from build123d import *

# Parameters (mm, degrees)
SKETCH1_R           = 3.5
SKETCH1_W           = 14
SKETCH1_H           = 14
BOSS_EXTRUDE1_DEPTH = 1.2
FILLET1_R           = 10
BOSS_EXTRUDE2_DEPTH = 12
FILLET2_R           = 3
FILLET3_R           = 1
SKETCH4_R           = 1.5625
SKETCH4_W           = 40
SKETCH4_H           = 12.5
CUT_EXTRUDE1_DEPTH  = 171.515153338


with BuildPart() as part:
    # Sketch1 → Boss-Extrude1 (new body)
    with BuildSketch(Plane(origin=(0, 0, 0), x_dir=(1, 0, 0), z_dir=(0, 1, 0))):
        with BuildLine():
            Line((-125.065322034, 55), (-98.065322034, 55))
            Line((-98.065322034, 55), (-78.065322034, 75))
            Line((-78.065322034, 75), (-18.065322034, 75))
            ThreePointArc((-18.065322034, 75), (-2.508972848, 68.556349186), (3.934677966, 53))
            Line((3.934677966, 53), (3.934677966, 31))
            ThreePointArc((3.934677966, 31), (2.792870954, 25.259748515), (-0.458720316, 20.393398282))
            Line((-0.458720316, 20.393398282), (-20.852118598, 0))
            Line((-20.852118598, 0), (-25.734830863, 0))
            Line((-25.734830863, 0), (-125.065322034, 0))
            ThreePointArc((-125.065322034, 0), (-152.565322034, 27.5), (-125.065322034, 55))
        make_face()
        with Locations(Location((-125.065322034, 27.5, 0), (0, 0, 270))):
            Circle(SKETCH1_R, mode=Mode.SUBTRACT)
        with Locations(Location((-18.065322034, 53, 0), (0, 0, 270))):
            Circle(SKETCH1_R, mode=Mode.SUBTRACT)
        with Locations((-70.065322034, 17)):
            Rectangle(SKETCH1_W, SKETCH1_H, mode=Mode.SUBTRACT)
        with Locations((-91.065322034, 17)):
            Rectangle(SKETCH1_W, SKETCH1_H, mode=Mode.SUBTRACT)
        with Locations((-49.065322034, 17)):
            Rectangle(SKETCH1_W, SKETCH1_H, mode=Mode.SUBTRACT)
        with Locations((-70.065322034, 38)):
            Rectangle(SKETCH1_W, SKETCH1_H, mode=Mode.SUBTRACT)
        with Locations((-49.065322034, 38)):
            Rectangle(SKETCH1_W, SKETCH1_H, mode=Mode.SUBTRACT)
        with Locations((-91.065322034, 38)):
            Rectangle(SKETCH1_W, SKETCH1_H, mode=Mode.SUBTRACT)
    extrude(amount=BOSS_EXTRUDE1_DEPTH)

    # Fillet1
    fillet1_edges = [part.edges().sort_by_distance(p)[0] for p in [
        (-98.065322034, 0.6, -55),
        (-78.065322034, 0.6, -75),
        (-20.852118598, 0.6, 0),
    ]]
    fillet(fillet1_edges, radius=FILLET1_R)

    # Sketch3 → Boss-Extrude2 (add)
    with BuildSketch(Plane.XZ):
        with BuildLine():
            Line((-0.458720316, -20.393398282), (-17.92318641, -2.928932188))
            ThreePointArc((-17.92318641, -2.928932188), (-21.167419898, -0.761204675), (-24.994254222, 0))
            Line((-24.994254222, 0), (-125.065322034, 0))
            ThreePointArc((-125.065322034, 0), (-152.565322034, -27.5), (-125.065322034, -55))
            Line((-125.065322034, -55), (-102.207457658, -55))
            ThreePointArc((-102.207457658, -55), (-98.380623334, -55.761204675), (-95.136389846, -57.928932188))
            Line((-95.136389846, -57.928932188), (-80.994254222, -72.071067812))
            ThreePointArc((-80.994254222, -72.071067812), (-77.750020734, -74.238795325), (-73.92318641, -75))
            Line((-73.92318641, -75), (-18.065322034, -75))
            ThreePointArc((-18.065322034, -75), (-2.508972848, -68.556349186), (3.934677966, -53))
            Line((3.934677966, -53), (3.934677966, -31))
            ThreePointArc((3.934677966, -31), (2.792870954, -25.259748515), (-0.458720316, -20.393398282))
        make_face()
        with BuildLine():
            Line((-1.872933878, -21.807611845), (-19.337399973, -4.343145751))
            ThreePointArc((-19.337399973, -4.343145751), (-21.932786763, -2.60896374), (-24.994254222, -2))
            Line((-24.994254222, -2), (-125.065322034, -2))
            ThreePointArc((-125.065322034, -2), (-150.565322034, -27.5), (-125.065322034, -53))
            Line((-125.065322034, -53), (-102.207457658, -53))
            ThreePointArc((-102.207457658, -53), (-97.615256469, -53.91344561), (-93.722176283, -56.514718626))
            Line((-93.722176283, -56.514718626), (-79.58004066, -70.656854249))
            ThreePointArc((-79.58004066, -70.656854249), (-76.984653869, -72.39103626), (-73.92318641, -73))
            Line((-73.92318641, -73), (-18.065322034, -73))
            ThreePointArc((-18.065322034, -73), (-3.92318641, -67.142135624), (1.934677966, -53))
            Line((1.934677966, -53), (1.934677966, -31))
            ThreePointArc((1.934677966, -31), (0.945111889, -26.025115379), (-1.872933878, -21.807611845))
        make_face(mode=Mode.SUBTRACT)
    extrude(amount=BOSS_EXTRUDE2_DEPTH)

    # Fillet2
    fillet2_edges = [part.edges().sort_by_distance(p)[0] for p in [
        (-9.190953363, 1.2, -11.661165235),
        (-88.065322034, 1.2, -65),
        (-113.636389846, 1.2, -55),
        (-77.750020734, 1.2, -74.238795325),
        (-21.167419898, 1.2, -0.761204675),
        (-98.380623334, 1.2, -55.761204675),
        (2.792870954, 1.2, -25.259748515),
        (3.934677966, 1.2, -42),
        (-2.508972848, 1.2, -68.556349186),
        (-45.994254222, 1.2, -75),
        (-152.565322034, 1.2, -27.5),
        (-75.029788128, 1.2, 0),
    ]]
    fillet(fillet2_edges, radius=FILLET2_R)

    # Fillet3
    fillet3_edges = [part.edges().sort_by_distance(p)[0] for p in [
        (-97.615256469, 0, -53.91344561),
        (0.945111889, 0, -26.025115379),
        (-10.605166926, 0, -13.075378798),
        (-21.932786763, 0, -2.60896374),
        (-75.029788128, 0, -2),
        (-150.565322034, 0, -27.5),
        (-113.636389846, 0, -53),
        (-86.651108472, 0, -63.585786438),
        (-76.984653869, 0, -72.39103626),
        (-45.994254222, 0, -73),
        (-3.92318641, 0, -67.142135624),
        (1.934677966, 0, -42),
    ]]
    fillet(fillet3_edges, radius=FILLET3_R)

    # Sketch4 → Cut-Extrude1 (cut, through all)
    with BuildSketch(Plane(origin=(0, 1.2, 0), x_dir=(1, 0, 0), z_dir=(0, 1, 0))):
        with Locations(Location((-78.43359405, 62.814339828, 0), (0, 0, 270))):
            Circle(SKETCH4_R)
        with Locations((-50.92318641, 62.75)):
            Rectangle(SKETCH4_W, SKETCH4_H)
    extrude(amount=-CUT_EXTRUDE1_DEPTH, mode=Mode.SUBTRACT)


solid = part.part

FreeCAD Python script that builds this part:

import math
import FreeCAD as App
import Part
import Sketcher
Q = App.Units.Quantity


def edges_at(feature, points):
    """Names of the edges that pass closest to the given points."""
    edges = feature.Shape.Edges
    near = lambda p: min(range(len(edges)), key=lambda i: edges[i].distToShape(Part.Vertex(*p))[0])
    return sorted({f"Edge{near(p) + 1}" for p in points})

doc = App.newDocument("Part")
body = doc.addObject("PartDesign::Body", "Body")

# Sketch on XZ plane
sketch1 = doc.addObject("Sketcher::SketchObject", "Sketch")
body.addObject(sketch1)
sketch1.AttachmentSupport = (doc.XZ_Plane, [""])
sketch1.MapMode = "FlatFace"
sketch1.addGeometry([
    Part.LineSegment(App.Vector(-98.065322, -55, 0), App.Vector(-125.065322, -55, 0)),  # 0
    Part.ArcOfCircle(Part.Circle(App.Vector(-125.065322, -27.5, 0), App.Vector(0, 0, 1), 27.5), math.radians(90), math.radians(270)),  # 1
    Part.LineSegment(App.Vector(-125.065322, 0, 0), App.Vector(-20.852119, 0, 0)),  # 2
    Part.LineSegment(App.Vector(-20.852119, 0, 0), App.Vector(-0.45872, -20.393398, 0)),  # 3
    Part.ArcOfCircle(Part.Circle(App.Vector(-11.065322, -31, 0), App.Vector(0, 0, 1), 15), math.radians(0), math.radians(45)),  # 4
    Part.LineSegment(App.Vector(3.934678, -31, 0), App.Vector(3.934678, -53, 0)),  # 5
    Part.ArcOfCircle(Part.Circle(App.Vector(-18.065322, -53, 0), App.Vector(0, 0, 1), 22), math.radians(-90), math.radians(0)),  # 6
    Part.LineSegment(App.Vector(-18.065322, -75, 0), App.Vector(-78.065322, -75, 0)),  # 7
    Part.LineSegment(App.Vector(-78.065322, -75, 0), App.Vector(-98.065322, -55, 0)),  # 8
    Part.LineSegment(App.Vector(-56.065322, -10, 0), App.Vector(-56.065322, -24, 0)),  # 9
    Part.LineSegment(App.Vector(-56.065322, -24, 0), App.Vector(-42.065322, -24, 0)),  # 10
    Part.LineSegment(App.Vector(-42.065322, -24, 0), App.Vector(-42.065322, -10, 0)),  # 11
    Part.LineSegment(App.Vector(-42.065322, -10, 0), App.Vector(-56.065322, -10, 0)),  # 12
    Part.LineSegment(App.Vector(-77.065322, -10, 0), App.Vector(-77.065322, -24, 0)),  # 13
    Part.LineSegment(App.Vector(-77.065322, -24, 0), App.Vector(-63.065322, -24, 0)),  # 14
    Part.LineSegment(App.Vector(-63.065322, -24, 0), App.Vector(-63.065322, -10, 0)),  # 15
    Part.LineSegment(App.Vector(-63.065322, -10, 0), App.Vector(-77.065322, -10, 0)),  # 16
    Part.LineSegment(App.Vector(-98.065322, -10, 0), App.Vector(-98.065322, -24, 0)),  # 17
    Part.LineSegment(App.Vector(-98.065322, -24, 0), App.Vector(-84.065322, -24, 0)),  # 18
    Part.LineSegment(App.Vector(-84.065322, -24, 0), App.Vector(-84.065322, -10, 0)),  # 19
    Part.LineSegment(App.Vector(-84.065322, -10, 0), App.Vector(-98.065322, -10, 0)),  # 20
    Part.Circle(App.Vector(-125.065322, -27.5, 0), App.Vector(0, 0, 1), 3.5),  # 21
    Part.LineSegment(App.Vector(-56.065322, -31, 0), App.Vector(-56.065322, -45, 0)),  # 22
    Part.LineSegment(App.Vector(-56.065322, -45, 0), App.Vector(-42.065322, -45, 0)),  # 23
    Part.LineSegment(App.Vector(-42.065322, -45, 0), App.Vector(-42.065322, -31, 0)),  # 24
    Part.LineSegment(App.Vector(-42.065322, -31, 0), App.Vector(-56.065322, -31, 0)),  # 25
    Part.LineSegment(App.Vector(-77.065322, -31, 0), App.Vector(-77.065322, -45, 0)),  # 26
    Part.LineSegment(App.Vector(-77.065322, -45, 0), App.Vector(-63.065322, -45, 0)),  # 27
    Part.LineSegment(App.Vector(-63.065322, -45, 0), App.Vector(-63.065322, -31, 0)),  # 28
    Part.LineSegment(App.Vector(-63.065322, -31, 0), App.Vector(-77.065322, -31, 0)),  # 29
    Part.Circle(App.Vector(-18.065322, -53, 0), App.Vector(0, 0, 1), 3.5),  # 30
    Part.LineSegment(App.Vector(-98.065322, -31, 0), App.Vector(-98.065322, -45, 0)),  # 31
    Part.LineSegment(App.Vector(-98.065322, -45, 0), App.Vector(-84.065322, -45, 0)),  # 32
    Part.LineSegment(App.Vector(-84.065322, -45, 0), App.Vector(-84.065322, -31, 0)),  # 33
    Part.LineSegment(App.Vector(-84.065322, -31, 0), App.Vector(-98.065322, -31, 0)),  # 34
], False)
sketch1.addConstraint([
    Sketcher.Constraint("Tangent", 0, 2, 1, 2),
    Sketcher.Constraint("Tangent", 1, 1, 2, 1),
    Sketcher.Constraint("Coincident", 2, 2, 3, 1),
    Sketcher.Constraint("Tangent", 3, 2, 4, 2),
    Sketcher.Constraint("Tangent", 4, 1, 5, 1),
    Sketcher.Constraint("Tangent", 5, 2, 6, 2),
    Sketcher.Constraint("Tangent", 6, 1, 7, 1),
    Sketcher.Constraint("Coincident", 7, 2, 8, 1),
    Sketcher.Constraint("Coincident", 8, 2, 0, 1),
    Sketcher.Constraint("Coincident", 9, 2, 10, 1),
    Sketcher.Constraint("Coincident", 10, 2, 11, 1),
    Sketcher.Constraint("Coincident", 11, 2, 12, 1),
    Sketcher.Constraint("Coincident", 12, 2, 9, 1),
    Sketcher.Constraint("Coincident", 13, 2, 14, 1),
    Sketcher.Constraint("Coincident", 14, 2, 15, 1),
    Sketcher.Constraint("Coincident", 15, 2, 16, 1),
    Sketcher.Constraint("Coincident", 16, 2, 13, 1),
    Sketcher.Constraint("Coincident", 17, 2, 18, 1),
    Sketcher.Constraint("Coincident", 18, 2, 19, 1),
    Sketcher.Constraint("Coincident", 19, 2, 20, 1),
    Sketcher.Constraint("Coincident", 20, 2, 17, 1),
    Sketcher.Constraint("Coincident", 22, 2, 23, 1),
    Sketcher.Constraint("Coincident", 23, 2, 24, 1),
    Sketcher.Constraint("Coincident", 24, 2, 25, 1),
    Sketcher.Constraint("Coincident", 25, 2, 22, 1),
    Sketcher.Constraint("Coincident", 26, 2, 27, 1),
    Sketcher.Constraint("Coincident", 27, 2, 28, 1),
    Sketcher.Constraint("Coincident", 28, 2, 29, 1),
    Sketcher.Constraint("Coincident", 29, 2, 26, 1),
    Sketcher.Constraint("Coincident", 31, 2, 32, 1),
    Sketcher.Constraint("Coincident", 32, 2, 33, 1),
    Sketcher.Constraint("Coincident", 33, 2, 34, 1),
    Sketcher.Constraint("Coincident", 34, 2, 31, 1),
    Sketcher.Constraint("Horizontal", 0),
    Sketcher.Constraint("Horizontal", 2),
    Sketcher.Constraint("Vertical", 5),
    Sketcher.Constraint("Horizontal", 7),
    Sketcher.Constraint("Vertical", 9),
    Sketcher.Constraint("Horizontal", 10),
    Sketcher.Constraint("Vertical", 11),
    Sketcher.Constraint("Horizontal", 12),
    Sketcher.Constraint("Vertical", 13),
    Sketcher.Constraint("Horizontal", 14),
    Sketcher.Constraint("Vertical", 15),
    Sketcher.Constraint("Horizontal", 16),
    Sketcher.Constraint("Vertical", 17),
    Sketcher.Constraint("Horizontal", 18),
    Sketcher.Constraint("Vertical", 19),
    Sketcher.Constraint("Horizontal", 20),
    Sketcher.Constraint("Vertical", 22),
    Sketcher.Constraint("Horizontal", 23),
    Sketcher.Constraint("Vertical", 24),
    Sketcher.Constraint("Horizontal", 25),
    Sketcher.Constraint("Vertical", 26),
    Sketcher.Constraint("Horizontal", 27),
    Sketcher.Constraint("Vertical", 28),
    Sketcher.Constraint("Horizontal", 29),
    Sketcher.Constraint("Vertical", 31),
    Sketcher.Constraint("Horizontal", 32),
    Sketcher.Constraint("Vertical", 33),
    Sketcher.Constraint("Horizontal", 34),
    Sketcher.Constraint("Coincident", 21, 3, 1, 3),
    Sketcher.Constraint("Coincident", 30, 3, 6, 3),
    Sketcher.Constraint("Equal", 21, 30),
    Sketcher.Constraint("PointOnObject", 1, 1, -1),
    Sketcher.Constraint("Parallel", 3, 8),
    Sketcher.Constraint("Horizontal", 10, 2, 13, 2),
    Sketcher.Constraint("Horizontal", 12, 2, 15, 2),
    Sketcher.Constraint("Horizontal", 14, 2, 17, 2),
    Sketcher.Constraint("Horizontal", 16, 2, 19, 2),
    Sketcher.Constraint("Horizontal", 4, 1, 24, 2),
    Sketcher.Constraint("Horizontal", 23, 2, 26, 2),
    Sketcher.Constraint("Horizontal", 25, 2, 28, 2),
    Sketcher.Constraint("Horizontal", 27, 2, 31, 2),
    Sketcher.Constraint("Horizontal", 29, 2, 33, 2),
    Sketcher.Constraint("Vertical", 8, 2, 17, 2),
    Sketcher.Constraint("Vertical", 12, 2, 22, 2),
    Sketcher.Constraint("Vertical", 11, 2, 23, 2),
    Sketcher.Constraint("Vertical", 16, 2, 26, 2),
    Sketcher.Constraint("Vertical", 15, 2, 27, 2),
    Sketcher.Constraint("Vertical", 20, 2, 31, 2),
    Sketcher.Constraint("Vertical", 19, 2, 32, 2),
    Sketcher.Constraint("Equal", 12, 14),
    Sketcher.Constraint("Equal", 16, 18),
    Sketcher.Constraint("Equal", 34, 9),
    Sketcher.Constraint("Equal", 19, 22),
    Sketcher.Constraint("Diameter", 21, Q("7 mm")),
    Sketcher.Constraint("Radius", 4, Q("15 mm")),
    Sketcher.Constraint("Radius", 6, Q("22 mm")),
    Sketcher.Constraint("Radius", 1, Q("27.5 mm")),
    Sketcher.Constraint("DistanceX", 0, 2, 0, 1, Q("27 mm")),
    Sketcher.Constraint("DistanceX", 7, 2, 7, 1, Q("60 mm")),
    Sketcher.Constraint("DistanceX", 10, 1, 10, 2, Q("14 mm")),
    Sketcher.Constraint("DistanceY", 5, 2, 5, 1, Q("22 mm")),
    Sketcher.Constraint("Angle", 3, Q("-45 deg")),
    Sketcher.Constraint("DistanceY", 4, 3, -1, 1, Q("31 mm")),
    Sketcher.Constraint("DistanceY", 9, 2, -1, 1, Q("24 mm")),
    Sketcher.Constraint("DistanceX", 9, 2, 4, 3, Q("45 mm")),
    Sketcher.Constraint("DistanceX", 13, 2, 9, 2, Q("21 mm")),
    Sketcher.Constraint("DistanceX", 2, 2, -1, 1, Q("20.852119 mm")),
])
pad1 = doc.addObject("PartDesign::Pad", "Pad")
body.addObject(pad1)
pad1.Profile = sketch1
pad1.Length = 1.2
pad1.Reversed = True
doc.recompute()

fillet = doc.addObject("PartDesign::Fillet", "Fillet")
body.addObject(fillet)
fillet.Base = (pad1, edges_at(pad1, [(-98.065, 0.6, -55), (-78.065, 0.6, -75), (-20.852, 0.6, 0)]))
fillet.Radius = 10

# Sketch on XZ plane
sketch2 = doc.addObject("Sketcher::SketchObject", "Sketch001")
body.addObject(sketch2)
sketch2.AttachmentSupport = (doc.XZ_Plane, [""])
sketch2.MapMode = "FlatFace"
sketch2.addGeometry([
    Part.LineSegment(App.Vector(-0.45872, -20.393398, 0), App.Vector(-17.923186, -2.928932, 0)),  # 0
    Part.ArcOfCircle(Part.Circle(App.Vector(-24.994254, -10, 0), App.Vector(0, 0, 1), 10), math.radians(45), math.radians(90)),  # 1
    Part.LineSegment(App.Vector(-24.994254, 0, 0), App.Vector(-125.065322, 0, 0)),  # 2
    Part.ArcOfCircle(Part.Circle(App.Vector(-125.065322, -27.5, 0), App.Vector(0, 0, 1), 27.5), math.radians(90), math.radians(270)),  # 3
    Part.LineSegment(App.Vector(-125.065322, -55, 0), App.Vector(-102.207458, -55, 0)),  # 4
    Part.ArcOfCircle(Part.Circle(App.Vector(-102.207458, -65, 0), App.Vector(0, 0, 1), 10), math.radians(45), math.radians(90)),  # 5
    Part.LineSegment(App.Vector(-95.13639, -57.928932, 0), App.Vector(-80.994254, -72.071068, 0)),  # 6
    Part.ArcOfCircle(Part.Circle(App.Vector(-73.923186, -65, 0), App.Vector(0, 0, 1), 10), math.radians(-135), math.radians(-90)),  # 7
    Part.LineSegment(App.Vector(-73.923186, -75, 0), App.Vector(-18.065322, -75, 0)),  # 8
    Part.ArcOfCircle(Part.Circle(App.Vector(-18.065322, -53, 0), App.Vector(0, 0, 1), 22), math.radians(-90), math.radians(0)),  # 9
    Part.LineSegment(App.Vector(3.934678, -53, 0), App.Vector(3.934678, -31, 0)),  # 10
    Part.ArcOfCircle(Part.Circle(App.Vector(-11.065322, -31, 0), App.Vector(0, 0, 1), 15), math.radians(0), math.radians(45)),  # 11
    Part.LineSegment(App.Vector(-19.3374, -4.343146, 0), App.Vector(-1.872934, -21.807612, 0)),  # 12
    Part.ArcOfCircle(Part.Circle(App.Vector(-11.065322, -31, 0), App.Vector(0, 0, 1), 13), math.radians(0), math.radians(45)),  # 13
    Part.LineSegment(App.Vector(1.934678, -31, 0), App.Vector(1.934678, -53, 0)),  # 14
    Part.ArcOfCircle(Part.Circle(App.Vector(-18.065322, -53, 0), App.Vector(0, 0, 1), 20), math.radians(-90), math.radians(0)),  # 15
    Part.LineSegment(App.Vector(-18.065322, -73, 0), App.Vector(-73.923186, -73, 0)),  # 16
    Part.ArcOfCircle(Part.Circle(App.Vector(-73.923186, -65, 0), App.Vector(0, 0, 1), 8), math.radians(-135), math.radians(-90)),  # 17
    Part.LineSegment(App.Vector(-79.580041, -70.656854, 0), App.Vector(-93.722176, -56.514719, 0)),  # 18
    Part.ArcOfCircle(Part.Circle(App.Vector(-102.207458, -65, 0), App.Vector(0, 0, 1), 12), math.radians(45), math.radians(90)),  # 19
    Part.LineSegment(App.Vector(-102.207458, -53, 0), App.Vector(-125.065322, -53, 0)),  # 20
    Part.ArcOfCircle(Part.Circle(App.Vector(-125.065322, -27.5, 0), App.Vector(0, 0, 1), 25.5), math.radians(90), math.radians(270)),  # 21
    Part.LineSegment(App.Vector(-125.065322, -2, 0), App.Vector(-24.994254, -2, 0)),  # 22
    Part.ArcOfCircle(Part.Circle(App.Vector(-24.994254, -10, 0), App.Vector(0, 0, 1), 8), math.radians(45), math.radians(90)),  # 23
], False)
sketch2.addConstraint([
    Sketcher.Constraint("Tangent", 0, 2, 1, 1),
    Sketcher.Constraint("Tangent", 1, 2, 2, 1),
    Sketcher.Constraint("Tangent", 2, 2, 3, 1),
    Sketcher.Constraint("Tangent", 3, 2, 4, 1),
    Sketcher.Constraint("Tangent", 4, 2, 5, 2),
    Sketcher.Constraint("Tangent", 5, 1, 6, 1),
    Sketcher.Constraint("Tangent", 6, 2, 7, 1),
    Sketcher.Constraint("Tangent", 7, 2, 8, 1),
    Sketcher.Constraint("Tangent", 8, 2, 9, 1),
    Sketcher.Constraint("Tangent", 9, 2, 10, 1),
    Sketcher.Constraint("Tangent", 10, 2, 11, 1),
    Sketcher.Constraint("Tangent", 11, 2, 0, 1),
    Sketcher.Constraint("Tangent", 12, 2, 13, 2),
    Sketcher.Constraint("Tangent", 13, 1, 14, 1),
    Sketcher.Constraint("Tangent", 14, 2, 15, 2),
    Sketcher.Constraint("Tangent", 15, 1, 16, 1),
    Sketcher.Constraint("Tangent", 16, 2, 17, 2),
    Sketcher.Constraint("Tangent", 17, 1, 18, 1),
    Sketcher.Constraint("Tangent", 18, 2, 19, 1),
    Sketcher.Constraint("Tangent", 19, 2, 20, 1),
    Sketcher.Constraint("Tangent", 20, 2, 21, 2),
    Sketcher.Constraint("Tangent", 21, 1, 22, 1),
    Sketcher.Constraint("Tangent", 22, 2, 23, 2),
    Sketcher.Constraint("Tangent", 23, 1, 12, 1),
    Sketcher.Constraint("Horizontal", 2),
    Sketcher.Constraint("Horizontal", 4),
    Sketcher.Constraint("Horizontal", 8),
    Sketcher.Constraint("Vertical", 10),
    Sketcher.Constraint("Vertical", 14),
    Sketcher.Constraint("Horizontal", 16),
    Sketcher.Constraint("Horizontal", 20),
    Sketcher.Constraint("Horizontal", 22),
    Sketcher.Constraint("Coincident", 13, 3, 11, 3),
    Sketcher.Constraint("Coincident", 15, 3, 9, 3),
    Sketcher.Constraint("Coincident", 17, 3, 7, 3),
    Sketcher.Constraint("Coincident", 19, 3, 5, 3),
    Sketcher.Constraint("Coincident", 21, 3, 3, 3),
    Sketcher.Constraint("Coincident", 23, 3, 1, 3),
    Sketcher.Constraint("Equal", 1, 5),
    Sketcher.Constraint("Equal", 5, 7),
    Sketcher.Constraint("Equal", 17, 23),
    Sketcher.Constraint("PointOnObject", 1, 2, -1),
    Sketcher.Constraint("Parallel", 0, 6),
    Sketcher.Constraint("Horizontal", 5, 3, 7, 3),
    Sketcher.Constraint("Horizontal", 14, 2, 19, 2),
    Sketcher.Constraint("Radius", 1, Q("10 mm")),
    Sketcher.Constraint("Radius", 9, Q("22 mm")),
    Sketcher.Constraint("Radius", 11, Q("15 mm")),
    Sketcher.Constraint("Radius", 3, Q("27.5 mm")),
    Sketcher.Constraint("DistanceY", 10, 1, 10, 2, Q("22 mm")),
    Sketcher.Constraint("Angle", 0, Q("135 deg")),
    Sketcher.Constraint("DistanceX", 3, 3, 9, 3, Q("107 mm")),
    Sketcher.Constraint("DistanceX", 23, 1, -1, 1, Q("19.3374 mm")),
    Sketcher.Constraint("DistanceX", 4, 1, 4, 2, Q("22.857864 mm")),
])
pad2 = doc.addObject("PartDesign::Pad", "Pad001")
body.addObject(pad2)
pad2.Profile = sketch2
pad2.Length = 12
doc.recompute()

fillet2 = doc.addObject("PartDesign::Fillet", "Fillet001")
body.addObject(fillet2)
fillet2.Base = (pad2, edges_at(pad2, [
    (-9.191, 1.2, -11.661),
    (-88.065, 1.2, -65),
    (-113.636, 1.2, -55),
    (-77.75, 1.2, -74.239),
    (-21.167, 1.2, -0.761),
    (-98.381, 1.2, -55.761),
    (2.793, 1.2, -25.26),
    (3.935, 1.2, -42),
    (-2.509, 1.2, -68.556),
    (-45.994, 1.2, -75),
    (-152.565, 1.2, -27.5),
    (-75.03, 1.2, 0),
]))
fillet2.Radius = 3
doc.recompute()

fillet3 = doc.addObject("PartDesign::Fillet", "Fillet002")
body.addObject(fillet3)
fillet3.Base = (fillet2, edges_at(fillet2, [
    (-97.615, 0, -53.913),
    (0.945, 0, -26.025),
    (-10.605, 0, -13.075),
    (-21.933, 0, -2.609),
    (-75.03, 0, -2),
    (-150.565, 0, -27.5),
    (-113.636, 0, -53),
    (-86.651, 0, -63.586),
    (-76.985, 0, -72.391),
    (-45.994, 0, -73),
    (-3.923, 0, -67.142),
    (1.935, 0, -42),
]))
fillet3.Radius = 1

# Sketch on XZ plane
sketch3 = doc.addObject("Sketcher::SketchObject", "Sketch002")
body.addObject(sketch3)
sketch3.AttachmentSupport = (doc.XZ_Plane, [""])
sketch3.MapMode = "FlatFace"
sketch3.AttachmentOffset = App.Placement(App.Vector(0, 0, -1.2), App.Rotation())
sketch3.addGeometry([
    Part.Circle(App.Vector(-78.433594, -62.81434, 0), App.Vector(0, 0, 1), 1.5625),  # 0
    Part.LineSegment(App.Vector(-70.923186, -69, 0), App.Vector(-70.923186, -56.5, 0)),  # 1
    Part.LineSegment(App.Vector(-70.923186, -56.5, 0), App.Vector(-30.923186, -56.5, 0)),  # 2
    Part.LineSegment(App.Vector(-30.923186, -56.5, 0), App.Vector(-30.923186, -69, 0)),  # 3
    Part.LineSegment(App.Vector(-30.923186, -69, 0), App.Vector(-70.923186, -69, 0)),  # 4
], False)
sketch3.addConstraint([
    Sketcher.Constraint("Coincident", 1, 2, 2, 1),
    Sketcher.Constraint("Coincident", 2, 2, 3, 1),
    Sketcher.Constraint("Coincident", 3, 2, 4, 1),
    Sketcher.Constraint("Coincident", 4, 2, 1, 1),
    Sketcher.Constraint("Vertical", 1),
    Sketcher.Constraint("Horizontal", 2),
    Sketcher.Constraint("Vertical", 3),
    Sketcher.Constraint("Horizontal", 4),
    Sketcher.Constraint("DistanceX", 2, 1, 2, 2, Q("40 mm")),
    Sketcher.Constraint("Diameter", 0, Q("3.125 mm")),
    Sketcher.Constraint("DistanceY", 1, 1, 1, 2, Q("12.5 mm")),
    Sketcher.Constraint("DistanceY", 3, 2, -1, 1, Q("69 mm")),
    Sketcher.Constraint("DistanceY", 0, 3, -1, 1, Q("62.81434 mm")),
    Sketcher.Constraint("DistanceX", 0, 3, -1, 1, Q("78.433594 mm")),
    Sketcher.Constraint("DistanceX", 1, 2, -1, 1, Q("70.923186 mm")),
])
pocket1 = doc.addObject("PartDesign::Pocket", "Pocket")
body.addObject(pocket1)
pocket1.Profile = sketch3
pocket1.Type = "ThroughAll"
pocket1.Reversed = True

doc.recompute()
